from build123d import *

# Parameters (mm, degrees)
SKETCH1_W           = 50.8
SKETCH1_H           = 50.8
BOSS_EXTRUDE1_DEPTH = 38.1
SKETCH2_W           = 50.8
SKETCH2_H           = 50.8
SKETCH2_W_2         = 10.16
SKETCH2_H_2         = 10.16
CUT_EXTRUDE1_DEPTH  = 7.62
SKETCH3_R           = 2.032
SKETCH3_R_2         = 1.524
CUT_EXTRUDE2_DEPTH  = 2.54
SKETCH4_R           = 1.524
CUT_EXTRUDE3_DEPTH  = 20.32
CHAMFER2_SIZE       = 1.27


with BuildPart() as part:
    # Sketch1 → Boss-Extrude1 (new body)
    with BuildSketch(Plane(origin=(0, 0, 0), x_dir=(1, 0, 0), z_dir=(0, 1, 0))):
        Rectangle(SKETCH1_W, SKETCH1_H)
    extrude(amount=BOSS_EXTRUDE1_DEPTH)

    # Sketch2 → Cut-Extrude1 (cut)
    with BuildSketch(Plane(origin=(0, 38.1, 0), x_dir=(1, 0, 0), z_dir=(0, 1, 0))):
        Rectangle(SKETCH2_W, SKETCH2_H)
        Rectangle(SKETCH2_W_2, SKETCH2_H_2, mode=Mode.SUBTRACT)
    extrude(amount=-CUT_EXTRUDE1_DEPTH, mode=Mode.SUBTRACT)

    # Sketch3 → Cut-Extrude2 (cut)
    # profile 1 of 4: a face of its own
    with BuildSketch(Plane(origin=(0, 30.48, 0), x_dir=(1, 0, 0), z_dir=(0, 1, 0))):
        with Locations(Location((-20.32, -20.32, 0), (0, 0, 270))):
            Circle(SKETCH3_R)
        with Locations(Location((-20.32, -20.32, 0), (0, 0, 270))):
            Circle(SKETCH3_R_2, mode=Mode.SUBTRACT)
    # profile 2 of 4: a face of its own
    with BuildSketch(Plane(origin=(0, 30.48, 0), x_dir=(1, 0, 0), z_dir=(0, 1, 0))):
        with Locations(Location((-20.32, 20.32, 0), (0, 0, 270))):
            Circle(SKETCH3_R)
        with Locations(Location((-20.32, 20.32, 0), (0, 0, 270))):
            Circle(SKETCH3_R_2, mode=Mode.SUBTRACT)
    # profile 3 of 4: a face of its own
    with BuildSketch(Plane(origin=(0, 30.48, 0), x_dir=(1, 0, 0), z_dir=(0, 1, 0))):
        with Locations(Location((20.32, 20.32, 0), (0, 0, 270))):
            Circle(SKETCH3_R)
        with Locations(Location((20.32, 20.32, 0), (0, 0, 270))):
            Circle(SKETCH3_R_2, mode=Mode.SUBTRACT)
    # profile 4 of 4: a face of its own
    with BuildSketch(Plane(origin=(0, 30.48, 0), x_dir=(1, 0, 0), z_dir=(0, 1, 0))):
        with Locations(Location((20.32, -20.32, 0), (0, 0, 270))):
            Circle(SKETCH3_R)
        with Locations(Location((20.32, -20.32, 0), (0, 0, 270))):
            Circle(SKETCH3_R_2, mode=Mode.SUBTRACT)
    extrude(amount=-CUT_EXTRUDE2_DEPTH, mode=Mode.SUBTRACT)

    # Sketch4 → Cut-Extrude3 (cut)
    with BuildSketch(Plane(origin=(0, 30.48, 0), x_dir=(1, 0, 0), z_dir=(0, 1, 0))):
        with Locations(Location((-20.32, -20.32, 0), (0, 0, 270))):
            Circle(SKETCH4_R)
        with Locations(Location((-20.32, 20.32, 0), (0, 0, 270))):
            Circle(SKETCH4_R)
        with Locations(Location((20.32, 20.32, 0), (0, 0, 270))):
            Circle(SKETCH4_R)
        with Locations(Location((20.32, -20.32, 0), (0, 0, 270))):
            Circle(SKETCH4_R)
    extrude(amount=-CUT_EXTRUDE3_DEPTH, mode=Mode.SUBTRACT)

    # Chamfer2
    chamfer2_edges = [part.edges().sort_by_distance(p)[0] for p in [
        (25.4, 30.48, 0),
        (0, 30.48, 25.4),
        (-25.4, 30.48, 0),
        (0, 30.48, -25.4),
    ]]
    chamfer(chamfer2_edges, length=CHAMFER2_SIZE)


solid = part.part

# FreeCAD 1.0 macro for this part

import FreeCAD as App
import Part
import Sketcher
Q = App.Units.Quantity


def edges_at(feature, points):
    """Names of the edges that pass closest to the given points."""
    edges = feature.Shape.Edges
    near = lambda p: min(range(len(edges)), key=lambda i: edges[i].distToShape(Part.Vertex(*p))[0])
    return sorted({f"Edge{near(p) + 1}" for p in points})


def add_polygon(sketch, points):
    """Adds a closed chain of lines whose ends are joined by coincident constraints."""
    first, n = sketch.GeometryCount, len(points)
    for a, b in zip(points, points[1:] + points[:1]):
        sketch.addGeometry(Part.LineSegment(App.Vector(*a, 0), App.Vector(*b, 0)), False)
    for i in range(n):
        sketch.addConstraint(Sketcher.Constraint("Coincident", first + i, 2, first + (i + 1) % n, 1))

doc = App.newDocument("Part")
body = doc.addObject("PartDesign::Body", "Body")

# Sketch on XZ plane
sketch1 = doc.addObject("Sketcher::SketchObject", "Sketch")
body.addObject(sketch1)
sketch1.AttachmentSupport = (doc.XZ_Plane, [""])
sketch1.MapMode = "FlatFace"
add_polygon(sketch1, [(-25.4, -25.4), (-25.4, 25.4), (25.4, 25.4), (25.4, -25.4)])  # lines 0-3
sketch1.addConstraint(Sketcher.Constraint("Vertical", 0))
sketch1.addConstraint(Sketcher.Constraint("Horizontal", 1))
sketch1.addConstraint(Sketcher.Constraint("Vertical", 2))
sketch1.addConstraint(Sketcher.Constraint("Horizontal", 3))
sketch1.addConstraint(Sketcher.Constraint("Symmetric", 0, 2, 2, 2, -1, 1))
sketch1.addConstraint(Sketcher.Constraint("Equal", 3, 0))
sketch1.addConstraint(Sketcher.Constraint("DistanceX", 1, 1, 1, 2, Q("2 in")))
pad1 = doc.addObject("PartDesign::Pad", "Pad")
body.addObject(pad1)
pad1.Profile = sketch1
pad1.Length = Q("1.5 in")
pad1.Reversed = True

# Sketch on XZ plane
sketch2 = doc.addObject("Sketcher::SketchObject", "Sketch001")
body.addObject(sketch2)
sketch2.AttachmentSupport = (doc.XZ_Plane, [""])
sketch2.MapMode = "FlatFace"
sketch2.AttachmentOffset = App.Placement(App.Vector(0, 0, -1.5 * 25.4), App.Rotation())
add_polygon(sketch2, [(-25.4, -25.4), (-25.4, 25.4), (25.4, 25.4), (25.4, -25.4)])  # lines 0-3
add_polygon(sketch2, [(5.08, 5.08), (-5.08, 5.08), (-5.08, -5.08), (5.08, -5.08)])  # lines 4-7
sketch2.addConstraint(Sketcher.Constraint("Vertical", 0))
sketch2.addConstraint(Sketcher.Constraint("Horizontal", 1))
sketch2.addConstraint(Sketcher.Constraint("Vertical", 2))
sketch2.addConstraint(Sketcher.Constraint("Horizontal", 3))
sketch2.addConstraint(Sketcher.Constraint("Horizontal", 4))
sketch2.addConstraint(Sketcher.Constraint("Vertical", 5))
sketch2.addConstraint(Sketcher.Constraint("Horizontal", 6))
sketch2.addConstraint(Sketcher.Constraint("Vertical", 7))
sketch2.addConstraint(Sketcher.Constraint("Symmetric", 0, 2, 2, 2, -1, 1))
sketch2.addConstraint(Sketcher.Constraint("Symmetric", 4, 2, 6, 2, -1, 1))
sketch2.addConstraint(Sketcher.Constraint("Equal", 3, 0))
sketch2.addConstraint(Sketcher.Constraint("Equal", 6, 5))
sketch2.addConstraint(Sketcher.Constraint("DistanceX", 1, 1, 1, 2, Q("2 in")))
sketch2.addConstraint(Sketcher.Constraint("DistanceX", 4, 2, 4, 1, Q("0.4 in")))
pocket1 = doc.addObject("PartDesign::Pocket", "Pocket")
body.addObject(pocket1)
pocket1.Profile = sketch2
pocket1.Length = Q("0.3 in")
pocket1.Reversed = True

# Sketch on XZ plane
sketch3 = doc.addObject("Sketcher::SketchObject", "Sketch002")
body.addObject(sketch3)
sketch3.AttachmentSupport = (doc.XZ_Plane, [""])
sketch3.MapMode = "FlatFace"
sketch3.AttachmentOffset = App.Placement(App.Vector(0, 0, -1.2 * 25.4), App.Rotation())
sketch3.addGeometry(Part.Circle(App.Vector(-20.32, 20.32, 0), App.Vector(0, 0, 1), 2.032), False)
sketch3.addGeometry(Part.Circle(App.Vector(-20.32, 20.32, 0), App.Vector(0, 0, 1), 1.524), False)
sketch3.addGeometry(Part.Circle(App.Vector(-20.32, -20.32, 0), App.Vector(0, 0, 1), 2.032), False)
sketch3.addGeometry(Part.Circle(App.Vector(-20.32, -20.32, 0), App.Vector(0, 0, 1), 1.524), False)
sketch3.addGeometry(Part.Circle(App.Vector(20.32, -20.32, 0), App.Vector(0, 0, 1), 2.032), False)
sketch3.addGeometry(Part.Circle(App.Vector(20.32, -20.32, 0), App.Vector(0, 0, 1), 1.524), False)
sketch3.addGeometry(Part.Circle(App.Vector(20.32, 20.32, 0), App.Vector(0, 0, 1), 2.032), False)
sketch3.addGeometry(Part.Circle(App.Vector(20.32, 20.32, 0), App.Vector(0, 0, 1), 1.524), False)
sketch3.addConstraint(Sketcher.Constraint("Coincident", 1, 3, 0, 3))
sketch3.addConstraint(Sketcher.Constraint("Coincident", 3, 3, 2, 3))
sketch3.addConstraint(Sketcher.Constraint("Coincident", 5, 3, 4, 3))
sketch3.addConstraint(Sketcher.Constraint("Coincident", 7, 3, 6, 3))
sketch3.addConstraint(Sketcher.Constraint("Equal", 0, 2))
sketch3.addConstraint(Sketcher.Constraint("Equal", 1, 3))
sketch3.addConstraint(Sketcher.Constraint("Equal", 2, 4))
sketch3.addConstraint(Sketcher.Constraint("Equal", 3, 5))
sketch3.addConstraint(Sketcher.Constraint("Equal", 4, 6))
sketch3.addConstraint(Sketcher.Constraint("Equal", 5, 7))
sketch3.addConstraint(Sketcher.Constraint("Symmetric", 0, 3, 4, 3, -1, 1))
sketch3.addConstraint(Sketcher.Constraint("Symmetric", 2, 3, 6, 3, -1, 1))
sketch3.addConstraint(Sketcher.Constraint("Symmetric", 2, 3, 4, 3, -2))
sketch3.addConstraint(Sketcher.Constraint("Diameter", 0, Q("0.16 in")))
sketch3.addConstraint(Sketcher.Constraint("Diameter", 1, Q("0.12 in")))
sketch3.addConstraint(Sketcher.Constraint("DistanceX", 0, 3, -1, 1, Q("0.8 in")))
sketch3.addConstraint(Sketcher.Constraint("DistanceY", -1, 1, 0, 3, Q("0.8 in")))
pocket2 = doc.addObject("PartDesign::Pocket", "Pocket001")
body.addObject(pocket2)
pocket2.Profile = sketch3
pocket2.Length = Q("0.1 in")
pocket2.Reversed = True

# Sketch on XZ plane
sketch4 = doc.addObject("Sketcher::SketchObject", "Sketch003")
body.addObject(sketch4)
sketch4.AttachmentSupport = (doc.XZ_Plane, [""])
sketch4.MapMode = "FlatFace"
sketch4.AttachmentOffset = App.Placement(App.Vector(0, 0, -1.2 * 25.4), App.Rotation())
sketch4.addGeometry(Part.Circle(App.Vector(-20.32, 20.32, 0), App.Vector(0, 0, 1), 1.524), False)
sketch4.addGeometry(Part.Circle(App.Vector(-20.32, -20.32, 0), App.Vector(0, 0, 1), 1.524), False)
sketch4.addGeometry(Part.Circle(App.Vector(20.32, -20.32, 0), App.Vector(0, 0, 1), 1.524), False)
sketch4.addGeometry(Part.Circle(App.Vector(20.32, 20.32, 0), App.Vector(0, 0, 1), 1.524), False)
sketch4.addConstraint(Sketcher.Constraint("Equal", 0, 1))
sketch4.addConstraint(Sketcher.Constraint("Equal", 1, 2))
sketch4.addConstraint(Sketcher.Constraint("Equal", 2, 3))
sketch4.addConstraint(Sketcher.Constraint("Symmetric", 0, 3, 2, 3, -1, 1))
sketch4.addConstraint(Sketcher.Constraint("Symmetric", 1, 3, 3, 3, -1, 1))
sketch4.addConstraint(Sketcher.Constraint("Symmetric", 1, 3, 2, 3, -2))
sketch4.addConstraint(Sketcher.Constraint("Diameter", 0, Q("0.12 in")))
sketch4.addConstraint(Sketcher.Constraint("DistanceX", 0, 3, -1, 1, Q("0.8 in")))
sketch4.addConstraint(Sketcher.Constraint("DistanceY", -1, 1, 0, 3, Q("0.8 in")))
pocket3 = doc.addObject("PartDesign::Pocket", "Pocket002")
body.addObject(pocket3)
pocket3.Profile = sketch4
pocket3.Length = Q("0.8 in")
pocket3.Reversed = True
doc.recompute()

chamfer = doc.addObject("PartDesign::Chamfer", "Chamfer")
body.addObject(chamfer)
chamfer.Base = (pocket3, edges_at(pocket3, [
    (25.4, 30.48, 0),
    (0, 30.48, 25.4),
    (-25.4, 30.48, 0),
    (0, 30.48, -25.4),
]))
chamfer.Size = Q("0.05 in")

doc.recompute()
